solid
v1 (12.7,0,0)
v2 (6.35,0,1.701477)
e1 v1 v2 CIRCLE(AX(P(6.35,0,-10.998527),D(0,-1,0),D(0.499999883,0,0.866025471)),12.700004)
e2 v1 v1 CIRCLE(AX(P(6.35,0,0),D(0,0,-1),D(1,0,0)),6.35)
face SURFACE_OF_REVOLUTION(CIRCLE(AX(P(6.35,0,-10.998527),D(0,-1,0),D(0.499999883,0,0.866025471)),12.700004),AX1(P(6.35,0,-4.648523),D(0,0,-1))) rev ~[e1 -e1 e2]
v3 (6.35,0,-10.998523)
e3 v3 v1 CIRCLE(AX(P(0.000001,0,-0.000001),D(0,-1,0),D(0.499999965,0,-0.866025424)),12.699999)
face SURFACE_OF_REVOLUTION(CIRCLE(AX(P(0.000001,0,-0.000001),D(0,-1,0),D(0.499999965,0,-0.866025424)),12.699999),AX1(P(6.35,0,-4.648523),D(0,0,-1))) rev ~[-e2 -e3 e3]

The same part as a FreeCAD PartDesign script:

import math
import FreeCAD as App
import Part
import Sketcher
from FreeCAD import Vector
Q = App.Units.Quantity

doc = App.newDocument("Part")
body = doc.addObject("PartDesign::Body", "Body")

sketch1 = doc.addObject("Sketcher::SketchObject", "Sketch")
body.addObject(sketch1)
sketch1.AttachmentSupport = (doc.XZ_Plane, [""])
sketch1.MapMode = "FlatFace"
sketch1.addGeometry([
    Part.LineSegment(Vector(6, 2, 0), Vector(6, -11, 0)),
    Part.ArcOfCircle(Part.Circle(Vector(0, 0, 0), Vector(0, 0, 1), 13), math.radians(-60), math.radians(0)),
    Part.ArcOfCircle(Part.Circle(Vector(6, -11, 0), Vector(0, 0, 1), 13), math.radians(60), math.radians(90)),
], False)
sketch1.addGeometry(Part.LineSegment(Vector(6, 2, 0), Vector(6, -11, 0)), True)
sketch1.addConstraint([
    Sketcher.Constraint("Coincident", 0, 2, 1, 1),
    Sketcher.Constraint("Coincident", 1, 2, 2, 1),
    Sketcher.Constraint("Coincident", 2, 2, 0, 1),
    Sketcher.Constraint("Vertical", 0),
    Sketcher.Constraint("Vertical", 3),
    Sketcher.Constraint("Coincident", 1, 3, -1, 1),
    Sketcher.Constraint("Coincident", 0, 2, 2, 3),
    Sketcher.Constraint("Coincident", 3, 1, 2, 2),
    Sketcher.Constraint("PointOnObject", 1, 2, -1),
    Sketcher.Constraint("Radius", 1, Q("0.5 in")),
    Sketcher.Constraint("Radius", 2, Q("0.5000001 in")),
    Sketcher.Constraint("DistanceY", 3, 2, 3, 1, Q("0.5000001 in")),
])
revolution = doc.addObject("PartDesign::Revolution", "Revolution")
body.addObject(revolution)
revolution.Profile = sketch1
revolution.ReferenceAxis = (sketch1, ["Axis0"])
revolution.Angle = 360

doc.recompute()
